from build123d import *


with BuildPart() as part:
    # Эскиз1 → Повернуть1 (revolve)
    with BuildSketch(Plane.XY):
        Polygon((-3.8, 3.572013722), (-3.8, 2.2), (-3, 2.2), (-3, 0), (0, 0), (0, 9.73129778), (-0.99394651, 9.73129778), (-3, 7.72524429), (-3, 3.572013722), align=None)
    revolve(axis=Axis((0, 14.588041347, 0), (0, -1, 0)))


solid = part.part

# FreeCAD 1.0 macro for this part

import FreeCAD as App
import Part
import Sketcher
Q = App.Units.Quantity


def add_polygon(sketch, points):
    """Adds a closed chain of lines whose ends are joined by coincident constraints."""
    first, n = sketch.GeometryCount, len(points)
    for a, b in zip(points, points[1:] + points[:1]):
        sketch.addGeometry(Part.LineSegment(App.Vector(*a, 0), App.Vector(*b, 0)), False)
    for i in range(n):
        sketch.addConstraint(Sketcher.Constraint("Coincident", first + i, 2, first + (i + 1) % n, 1))

doc = App.newDocument("Part")
params = doc.addObject("Spreadsheet::Sheet", "Params")
for row, (alias, value) in enumerate([
    ("sketch1_width", "3 mm"),
    ("sketch1_width2", "0.8 mm"),
    ("sketch1_height", "2.2 mm"),
    ("revolution_angle", "360 deg"),
], start=1):
    params.set(f"A{row}", alias)
    params.set(f"B{row}", "=" + value)
    params.setAlias(f"B{row}", alias)

body = doc.addObject("PartDesign::Body", "Body")

sketch1 = doc.addObject("Sketcher::SketchObject", "Sketch")
body.addObject(sketch1)
sketch1.AttachmentSupport = (doc.XY_Plane, [""])
sketch1.MapMode = "FlatFace"
add_polygon(sketch1, [(-3.8, 3.6), (-3.8, 2.2), (-3, 2.2), (-3, 0), (0, 0), (0, 9.7), (-1, 9.7), (-3, 7.7), (-3, 3.6)])
sketch1.addConstraint([
    Sketcher.Constraint("Vertical", 0),
    Sketcher.Constraint("Horizontal", 1),
    Sketcher.Constraint("Vertical", 2),
    Sketcher.Constraint("Horizontal", 3),
    Sketcher.Constraint("Vertical", 4),
    Sketcher.Constraint("Horizontal", 5),
    Sketcher.Constraint("Vertical", 7),
    Sketcher.Constraint("Horizontal", 8),
    Sketcher.Constraint("Coincident", 3, 2, -1, 1),
    Sketcher.Constraint("Vertical", 2, 2, 6, 2),
    Sketcher.Constraint("DistanceX", 3, 1, 3, 2, Q("3 mm")),
    Sketcher.Constraint("Angle", 6, Q("-135 deg")),
    Sketcher.Constraint("DistanceX", 1, 1, 1, 2, Q("0.8 mm")),
    Sketcher.Constraint("DistanceY", 2, 2, 2, 1, Q("2.2 mm")),
    Sketcher.Constraint("DistanceY", 7, 2, 7, 1, Q("4.153231 mm")),
    Sketcher.Constraint("Distance", 6, Q("2.836988 mm")),
    Sketcher.Constraint("DistanceY", 0, 2, 0, 1, Q("1.372014 mm")),
])
sketch1.setExpression("Constraints[19]", "Params.sketch1_width")
sketch1.setExpression("Constraints[21]", "Params.sketch1_width2")
sketch1.setExpression("Constraints[22]", "Params.sketch1_height")
revolution = doc.addObject("PartDesign::Revolution", "Revolution")
body.addObject(revolution)
revolution.Profile = sketch1
revolution.ReferenceAxis = (sketch1, ["V_Axis"])
revolution.setExpression("Angle", "Params.revolution_angle")

doc.recompute()
